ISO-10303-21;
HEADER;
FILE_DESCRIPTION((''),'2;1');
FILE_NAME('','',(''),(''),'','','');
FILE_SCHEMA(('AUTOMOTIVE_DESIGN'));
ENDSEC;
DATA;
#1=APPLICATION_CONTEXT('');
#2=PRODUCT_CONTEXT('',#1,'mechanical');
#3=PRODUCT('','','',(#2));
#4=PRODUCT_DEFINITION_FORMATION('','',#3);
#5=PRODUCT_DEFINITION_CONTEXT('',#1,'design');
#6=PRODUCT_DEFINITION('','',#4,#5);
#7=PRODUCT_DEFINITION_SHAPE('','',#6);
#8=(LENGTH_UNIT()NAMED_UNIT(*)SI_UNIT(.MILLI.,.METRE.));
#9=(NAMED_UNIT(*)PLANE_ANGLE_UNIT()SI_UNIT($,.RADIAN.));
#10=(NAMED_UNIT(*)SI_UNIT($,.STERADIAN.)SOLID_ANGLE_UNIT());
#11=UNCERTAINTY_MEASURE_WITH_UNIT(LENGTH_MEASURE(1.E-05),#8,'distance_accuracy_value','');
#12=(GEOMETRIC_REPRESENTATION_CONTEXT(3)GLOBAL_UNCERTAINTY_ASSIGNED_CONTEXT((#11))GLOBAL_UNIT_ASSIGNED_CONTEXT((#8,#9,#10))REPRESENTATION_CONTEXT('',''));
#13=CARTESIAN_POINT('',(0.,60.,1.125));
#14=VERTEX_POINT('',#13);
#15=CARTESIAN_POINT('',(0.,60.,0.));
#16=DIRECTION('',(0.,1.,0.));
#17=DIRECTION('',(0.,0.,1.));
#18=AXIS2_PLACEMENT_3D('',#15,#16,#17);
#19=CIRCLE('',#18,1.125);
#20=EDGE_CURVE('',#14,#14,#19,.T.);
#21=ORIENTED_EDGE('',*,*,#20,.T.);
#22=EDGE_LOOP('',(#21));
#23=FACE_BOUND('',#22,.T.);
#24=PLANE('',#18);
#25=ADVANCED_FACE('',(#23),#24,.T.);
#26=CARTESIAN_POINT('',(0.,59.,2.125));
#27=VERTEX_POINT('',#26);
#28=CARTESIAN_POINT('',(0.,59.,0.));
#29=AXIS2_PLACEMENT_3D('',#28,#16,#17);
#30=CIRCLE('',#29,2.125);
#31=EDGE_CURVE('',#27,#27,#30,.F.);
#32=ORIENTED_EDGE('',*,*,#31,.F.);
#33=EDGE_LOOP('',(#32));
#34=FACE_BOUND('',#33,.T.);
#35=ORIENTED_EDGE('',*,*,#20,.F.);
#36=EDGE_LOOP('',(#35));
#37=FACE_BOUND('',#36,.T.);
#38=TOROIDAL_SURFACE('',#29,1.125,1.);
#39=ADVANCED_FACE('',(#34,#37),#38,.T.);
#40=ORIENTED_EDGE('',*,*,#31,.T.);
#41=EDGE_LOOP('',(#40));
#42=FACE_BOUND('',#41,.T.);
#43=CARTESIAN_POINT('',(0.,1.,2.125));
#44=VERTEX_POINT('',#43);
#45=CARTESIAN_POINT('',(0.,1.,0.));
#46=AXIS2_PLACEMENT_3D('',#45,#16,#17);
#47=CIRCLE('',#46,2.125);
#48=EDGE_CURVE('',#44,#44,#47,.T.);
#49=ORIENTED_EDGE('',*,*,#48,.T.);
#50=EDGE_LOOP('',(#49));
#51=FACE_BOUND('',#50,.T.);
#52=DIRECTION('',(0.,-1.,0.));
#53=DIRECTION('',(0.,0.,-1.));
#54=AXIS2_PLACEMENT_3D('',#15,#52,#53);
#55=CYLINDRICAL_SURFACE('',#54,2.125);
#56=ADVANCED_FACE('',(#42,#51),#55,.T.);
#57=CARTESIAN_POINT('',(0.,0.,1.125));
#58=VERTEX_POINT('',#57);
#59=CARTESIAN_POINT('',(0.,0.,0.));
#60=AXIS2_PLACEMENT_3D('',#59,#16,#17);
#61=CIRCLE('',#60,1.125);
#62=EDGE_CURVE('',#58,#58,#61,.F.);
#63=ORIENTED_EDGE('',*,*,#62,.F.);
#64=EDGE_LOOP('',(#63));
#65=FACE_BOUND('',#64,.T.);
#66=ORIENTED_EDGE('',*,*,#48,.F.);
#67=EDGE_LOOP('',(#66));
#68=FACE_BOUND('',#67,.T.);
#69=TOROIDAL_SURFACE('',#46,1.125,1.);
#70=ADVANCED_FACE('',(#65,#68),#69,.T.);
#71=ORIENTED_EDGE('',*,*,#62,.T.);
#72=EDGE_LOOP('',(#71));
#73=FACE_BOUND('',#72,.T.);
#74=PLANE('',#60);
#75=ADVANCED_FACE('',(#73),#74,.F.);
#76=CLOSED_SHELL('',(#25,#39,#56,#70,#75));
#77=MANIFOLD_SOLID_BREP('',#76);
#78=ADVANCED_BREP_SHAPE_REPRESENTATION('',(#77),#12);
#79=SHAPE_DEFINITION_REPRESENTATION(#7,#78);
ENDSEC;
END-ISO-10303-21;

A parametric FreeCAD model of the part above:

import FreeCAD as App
import Part
import Sketcher


def edges_at(feature, points):
    """Names of the edges that pass closest to the given points."""
    edges = feature.Shape.Edges
    near = lambda p: min(range(len(edges)), key=lambda i: edges[i].distToShape(Part.Vertex(*p))[0])
    return sorted({f"Edge{near(p) + 1}" for p in points})

doc = App.newDocument("Part")
params = doc.addObject("Spreadsheet::Sheet", "Params")
for row, (alias, value) in enumerate([
    ("sketch1_diameter", "4.25 mm"),
    ("pad1_length", "60 mm"),
    ("fillet_radius", "1 mm"),
], start=1):
    params.set(f"A{row}", alias)
    params.set(f"B{row}", "=" + value)
    params.setAlias(f"B{row}", alias)

body = doc.addObject("PartDesign::Body", "Body")

sketch1 = body.newObject("Sketcher::SketchObject", "Sketch")
sketch1.AttachmentSupport = (doc.getObject("XZ_Plane"), [""])
sketch1.MapMode = "FlatFace"
sketch1.addGeometry(Part.Circle(App.Vector(0, 0, 0), App.Vector(0, 0, 1), 2.1), False)
sketch1.addConstraint([
    Sketcher.Constraint("Coincident", 0, 3, -1, 1),
    Sketcher.Constraint("Diameter", 0, 4.25),
])
sketch1.setExpression("Constraints[1]", "Params.sketch1_diameter")
pad1 = body.newObject("PartDesign::Pad", "Pad")
pad1.Profile = sketch1
pad1.setExpression("Length", "Params.pad1_length")
pad1.Reversed = True
doc.recompute()

fillet = body.newObject("PartDesign::Fillet", "Fillet")
fillet.Base = (pad1, edges_at(pad1, [(-2.125, 0, 0), (-2.125, 60, 0)]))
fillet.setExpression("Radius", "Params.fillet_radius")

doc.recompute()
